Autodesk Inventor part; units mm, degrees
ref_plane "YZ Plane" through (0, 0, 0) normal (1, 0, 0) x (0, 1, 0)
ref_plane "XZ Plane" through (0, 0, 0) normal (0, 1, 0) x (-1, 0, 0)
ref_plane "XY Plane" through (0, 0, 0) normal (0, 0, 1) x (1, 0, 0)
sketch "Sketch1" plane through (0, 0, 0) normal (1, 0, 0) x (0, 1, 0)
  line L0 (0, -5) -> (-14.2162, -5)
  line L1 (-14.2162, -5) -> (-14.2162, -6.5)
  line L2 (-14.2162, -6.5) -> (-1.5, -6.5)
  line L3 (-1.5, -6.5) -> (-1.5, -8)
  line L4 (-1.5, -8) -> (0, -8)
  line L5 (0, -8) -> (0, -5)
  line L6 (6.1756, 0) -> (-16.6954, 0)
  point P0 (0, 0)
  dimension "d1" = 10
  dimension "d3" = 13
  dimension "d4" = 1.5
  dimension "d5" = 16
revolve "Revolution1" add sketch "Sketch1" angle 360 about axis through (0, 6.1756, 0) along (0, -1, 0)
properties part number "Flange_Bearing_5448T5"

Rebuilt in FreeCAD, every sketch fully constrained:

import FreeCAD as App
import Part
import Sketcher


def add_polygon(sketch, points):
    """Adds a closed chain of lines whose ends are joined by coincident constraints."""
    first, n = sketch.GeometryCount, len(points)
    for a, b in zip(points, points[1:] + points[:1]):
        sketch.addGeometry(Part.LineSegment(App.Vector(*a, 0), App.Vector(*b, 0)), False)
    for i in range(n):
        sketch.addConstraint(Sketcher.Constraint("Coincident", first + i, 2, first + (i + 1) % n, 1))

doc = App.newDocument("Part")
params = doc.addObject("Spreadsheet::Sheet", "Params")
for row, (alias, value) in enumerate([
    ("sketch1_width", "1.5 mm"),
    ("revolution_angle", "360 deg"),
], start=1):
    params.set(f"A{row}", alias)
    params.set(f"B{row}", "=" + value)
    params.setAlias(f"B{row}", alias)

body = doc.addObject("PartDesign::Body", "Body")

sketch1 = body.newObject("Sketcher::SketchObject", "Sketch")
sketch1.AttachmentSupport = (doc.getObject("YZ_Plane"), [""])
sketch1.MapMode = "FlatFace"
add_polygon(sketch1, [(0, -8), (0, -5), (-14.2, -5), (-14.2, -6.5), (-1.5, -6.5), (-1.5, -8)])
sketch1.addConstraint(Sketcher.Constraint("Vertical", 0))
sketch1.addConstraint(Sketcher.Constraint("Horizontal", 1))
sketch1.addConstraint(Sketcher.Constraint("Vertical", 2))
sketch1.addConstraint(Sketcher.Constraint("Horizontal", 3))
sketch1.addConstraint(Sketcher.Constraint("Vertical", 4))
sketch1.addConstraint(Sketcher.Constraint("Horizontal", 5))
sketch1.addConstraint(Sketcher.Constraint("PointOnObject", 0, 2, -2))
sketch1.addConstraint(Sketcher.Constraint("Equal", 5, 2))
sketch1.addConstraint(Sketcher.Constraint("Equal", 2, 4))
sketch1.addConstraint(Sketcher.Constraint("DistanceX", 5, 1, 5, 2, 1.5))
sketch1.addConstraint(Sketcher.Constraint("DistanceY", 0, 2, -1, 1, 5.0))
sketch1.addConstraint(Sketcher.Constraint("DistanceX", 1, 2, 1, 1, 14.2162))
sketch1.setExpression("Constraints[15]", "Params.sketch1_width")
revolution = body.newObject("PartDesign::Revolution", "Revolution")
revolution.Profile = sketch1
revolution.ReferenceAxis = (sketch1, ["H_Axis"])
revolution.setExpression("Angle", "Params.revolution_angle")

doc.recompute()
